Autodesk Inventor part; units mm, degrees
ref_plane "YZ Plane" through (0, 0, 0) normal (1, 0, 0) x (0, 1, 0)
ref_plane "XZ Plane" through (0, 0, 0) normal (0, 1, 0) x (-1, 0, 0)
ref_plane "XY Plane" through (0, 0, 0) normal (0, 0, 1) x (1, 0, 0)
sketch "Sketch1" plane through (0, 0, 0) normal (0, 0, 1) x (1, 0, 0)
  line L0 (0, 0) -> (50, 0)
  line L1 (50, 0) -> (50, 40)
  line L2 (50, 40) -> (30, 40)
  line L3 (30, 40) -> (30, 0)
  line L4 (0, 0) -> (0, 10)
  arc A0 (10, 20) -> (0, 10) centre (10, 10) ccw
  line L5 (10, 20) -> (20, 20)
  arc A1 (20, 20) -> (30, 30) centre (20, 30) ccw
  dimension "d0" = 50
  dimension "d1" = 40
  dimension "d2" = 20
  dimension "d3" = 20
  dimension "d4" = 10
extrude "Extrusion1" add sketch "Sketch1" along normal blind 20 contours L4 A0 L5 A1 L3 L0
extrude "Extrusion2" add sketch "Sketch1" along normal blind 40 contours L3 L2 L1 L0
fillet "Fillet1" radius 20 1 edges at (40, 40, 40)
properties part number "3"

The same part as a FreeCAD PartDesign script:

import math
import FreeCAD as App
import Part
import Sketcher
Q = App.Units.Quantity


def edges_at(feature, points):
    """Names of the edges that pass closest to the given points."""
    edges = feature.Shape.Edges
    near = lambda p: min(range(len(edges)), key=lambda i: edges[i].distToShape(Part.Vertex(*p))[0])
    return sorted({f"Edge{near(p) + 1}" for p in points})

doc = App.newDocument("Part")
params = doc.addObject("Spreadsheet::Sheet", "Params")
for row, (alias, value) in enumerate([
    ("sketch1_radius", "10 mm"),
    ("sketch1_width", "10 mm"),
    ("pad1_length", "20 mm"),
    ("sketch2_width", "20 mm"),
    ("sketch2_height", "40 mm"),
    ("pad2_length", "40 mm"),
    ("fillet_radius", "20 mm"),
], start=1):
    params.set(f"A{row}", alias)
    params.set(f"B{row}", "=" + value)
    params.setAlias(f"B{row}", alias)

body = doc.addObject("PartDesign::Body", "Body")

sketch1 = doc.addObject("Sketcher::SketchObject", "Sketch")
body.addObject(sketch1)
sketch1.AttachmentSupport = (doc.XY_Plane, [""])
sketch1.MapMode = "FlatFace"
sketch1.addGeometry([
    Part.LineSegment(App.Vector(0, 10, 0), App.Vector(0, 0, 0)),
    Part.LineSegment(App.Vector(0, 0, 0), App.Vector(30, 0, 0)),
    Part.LineSegment(App.Vector(30, 0, 0), App.Vector(30, 30, 0)),
    Part.ArcOfCircle(Part.Circle(App.Vector(20, 30, 0), App.Vector(0, 0, 1), 10), math.radians(-90), math.radians(0)),
    Part.LineSegment(App.Vector(20, 20, 0), App.Vector(10, 20, 0)),
    Part.ArcOfCircle(Part.Circle(App.Vector(10, 10, 0), App.Vector(0, 0, 1), 10), math.radians(90), math.radians(180)),
], False)
sketch1.addConstraint([
    Sketcher.Constraint("Coincident", 0, 2, 1, 1),
    Sketcher.Constraint("Coincident", 1, 2, 2, 1),
    Sketcher.Constraint("Tangent", 2, 2, 3, 2),
    Sketcher.Constraint("Tangent", 3, 1, 4, 1),
    Sketcher.Constraint("Tangent", 4, 2, 5, 1),
    Sketcher.Constraint("Tangent", 5, 2, 0, 1),
    Sketcher.Constraint("Vertical", 0),
    Sketcher.Constraint("Horizontal", 1),
    Sketcher.Constraint("Vertical", 2),
    Sketcher.Constraint("Horizontal", 4),
    Sketcher.Constraint("Coincident", 0, 2, -1, 1),
    Sketcher.Constraint("Equal", 3, 5),
    Sketcher.Constraint("Equal", 4, 0),
    Sketcher.Constraint("Radius", 3, Q("10 mm")),
    Sketcher.Constraint("DistanceX", 4, 2, 4, 1, Q("10 mm")),
])
sketch1.setExpression("Constraints[13]", "Params.sketch1_radius")
sketch1.setExpression("Constraints[14]", "Params.sketch1_width")
pad1 = doc.addObject("PartDesign::Pad", "Pad")
body.addObject(pad1)
pad1.Profile = sketch1
pad1.setExpression("Length", "Params.pad1_length")

sketch2 = doc.addObject("Sketcher::SketchObject", "Sketch001")
body.addObject(sketch2)
sketch2.AttachmentSupport = (doc.XY_Plane, [""])
sketch2.MapMode = "FlatFace"
sketch2.addGeometry([
    Part.LineSegment(App.Vector(30, 40, 0), App.Vector(30, 0, 0)),
    Part.LineSegment(App.Vector(30, 0, 0), App.Vector(50, 0, 0)),
    Part.LineSegment(App.Vector(50, 0, 0), App.Vector(50, 40, 0)),
    Part.LineSegment(App.Vector(50, 40, 0), App.Vector(30, 40, 0)),
], False)
sketch2.addConstraint([
    Sketcher.Constraint("Coincident", 0, 2, 1, 1),
    Sketcher.Constraint("Coincident", 1, 2, 2, 1),
    Sketcher.Constraint("Coincident", 2, 2, 3, 1),
    Sketcher.Constraint("Coincident", 3, 2, 0, 1),
    Sketcher.Constraint("Vertical", 0),
    Sketcher.Constraint("Horizontal", 1),
    Sketcher.Constraint("Vertical", 2),
    Sketcher.Constraint("Horizontal", 3),
    Sketcher.Constraint("PointOnObject", 0, 2, -1),
    Sketcher.Constraint("DistanceX", 1, 1, 1, 2, Q("20 mm")),
    Sketcher.Constraint("DistanceY", 0, 2, 0, 1, Q("40 mm")),
    Sketcher.Constraint("DistanceX", -1, 1, 1, 2, Q("50 mm")),
])
sketch2.setExpression("Constraints[9]", "Params.sketch2_width")
sketch2.setExpression("Constraints[10]", "Params.sketch2_height")
pad2 = doc.addObject("PartDesign::Pad", "Pad001")
body.addObject(pad2)
pad2.Profile = sketch2
pad2.setExpression("Length", "Params.pad2_length")
doc.recompute()

fillet = doc.addObject("PartDesign::Fillet", "Fillet")
body.addObject(fillet)
fillet.Base = (pad2, edges_at(pad2, [(40, 40, 40)]))
fillet.setExpression("Radius", "Params.fillet_radius")

doc.recompute()
